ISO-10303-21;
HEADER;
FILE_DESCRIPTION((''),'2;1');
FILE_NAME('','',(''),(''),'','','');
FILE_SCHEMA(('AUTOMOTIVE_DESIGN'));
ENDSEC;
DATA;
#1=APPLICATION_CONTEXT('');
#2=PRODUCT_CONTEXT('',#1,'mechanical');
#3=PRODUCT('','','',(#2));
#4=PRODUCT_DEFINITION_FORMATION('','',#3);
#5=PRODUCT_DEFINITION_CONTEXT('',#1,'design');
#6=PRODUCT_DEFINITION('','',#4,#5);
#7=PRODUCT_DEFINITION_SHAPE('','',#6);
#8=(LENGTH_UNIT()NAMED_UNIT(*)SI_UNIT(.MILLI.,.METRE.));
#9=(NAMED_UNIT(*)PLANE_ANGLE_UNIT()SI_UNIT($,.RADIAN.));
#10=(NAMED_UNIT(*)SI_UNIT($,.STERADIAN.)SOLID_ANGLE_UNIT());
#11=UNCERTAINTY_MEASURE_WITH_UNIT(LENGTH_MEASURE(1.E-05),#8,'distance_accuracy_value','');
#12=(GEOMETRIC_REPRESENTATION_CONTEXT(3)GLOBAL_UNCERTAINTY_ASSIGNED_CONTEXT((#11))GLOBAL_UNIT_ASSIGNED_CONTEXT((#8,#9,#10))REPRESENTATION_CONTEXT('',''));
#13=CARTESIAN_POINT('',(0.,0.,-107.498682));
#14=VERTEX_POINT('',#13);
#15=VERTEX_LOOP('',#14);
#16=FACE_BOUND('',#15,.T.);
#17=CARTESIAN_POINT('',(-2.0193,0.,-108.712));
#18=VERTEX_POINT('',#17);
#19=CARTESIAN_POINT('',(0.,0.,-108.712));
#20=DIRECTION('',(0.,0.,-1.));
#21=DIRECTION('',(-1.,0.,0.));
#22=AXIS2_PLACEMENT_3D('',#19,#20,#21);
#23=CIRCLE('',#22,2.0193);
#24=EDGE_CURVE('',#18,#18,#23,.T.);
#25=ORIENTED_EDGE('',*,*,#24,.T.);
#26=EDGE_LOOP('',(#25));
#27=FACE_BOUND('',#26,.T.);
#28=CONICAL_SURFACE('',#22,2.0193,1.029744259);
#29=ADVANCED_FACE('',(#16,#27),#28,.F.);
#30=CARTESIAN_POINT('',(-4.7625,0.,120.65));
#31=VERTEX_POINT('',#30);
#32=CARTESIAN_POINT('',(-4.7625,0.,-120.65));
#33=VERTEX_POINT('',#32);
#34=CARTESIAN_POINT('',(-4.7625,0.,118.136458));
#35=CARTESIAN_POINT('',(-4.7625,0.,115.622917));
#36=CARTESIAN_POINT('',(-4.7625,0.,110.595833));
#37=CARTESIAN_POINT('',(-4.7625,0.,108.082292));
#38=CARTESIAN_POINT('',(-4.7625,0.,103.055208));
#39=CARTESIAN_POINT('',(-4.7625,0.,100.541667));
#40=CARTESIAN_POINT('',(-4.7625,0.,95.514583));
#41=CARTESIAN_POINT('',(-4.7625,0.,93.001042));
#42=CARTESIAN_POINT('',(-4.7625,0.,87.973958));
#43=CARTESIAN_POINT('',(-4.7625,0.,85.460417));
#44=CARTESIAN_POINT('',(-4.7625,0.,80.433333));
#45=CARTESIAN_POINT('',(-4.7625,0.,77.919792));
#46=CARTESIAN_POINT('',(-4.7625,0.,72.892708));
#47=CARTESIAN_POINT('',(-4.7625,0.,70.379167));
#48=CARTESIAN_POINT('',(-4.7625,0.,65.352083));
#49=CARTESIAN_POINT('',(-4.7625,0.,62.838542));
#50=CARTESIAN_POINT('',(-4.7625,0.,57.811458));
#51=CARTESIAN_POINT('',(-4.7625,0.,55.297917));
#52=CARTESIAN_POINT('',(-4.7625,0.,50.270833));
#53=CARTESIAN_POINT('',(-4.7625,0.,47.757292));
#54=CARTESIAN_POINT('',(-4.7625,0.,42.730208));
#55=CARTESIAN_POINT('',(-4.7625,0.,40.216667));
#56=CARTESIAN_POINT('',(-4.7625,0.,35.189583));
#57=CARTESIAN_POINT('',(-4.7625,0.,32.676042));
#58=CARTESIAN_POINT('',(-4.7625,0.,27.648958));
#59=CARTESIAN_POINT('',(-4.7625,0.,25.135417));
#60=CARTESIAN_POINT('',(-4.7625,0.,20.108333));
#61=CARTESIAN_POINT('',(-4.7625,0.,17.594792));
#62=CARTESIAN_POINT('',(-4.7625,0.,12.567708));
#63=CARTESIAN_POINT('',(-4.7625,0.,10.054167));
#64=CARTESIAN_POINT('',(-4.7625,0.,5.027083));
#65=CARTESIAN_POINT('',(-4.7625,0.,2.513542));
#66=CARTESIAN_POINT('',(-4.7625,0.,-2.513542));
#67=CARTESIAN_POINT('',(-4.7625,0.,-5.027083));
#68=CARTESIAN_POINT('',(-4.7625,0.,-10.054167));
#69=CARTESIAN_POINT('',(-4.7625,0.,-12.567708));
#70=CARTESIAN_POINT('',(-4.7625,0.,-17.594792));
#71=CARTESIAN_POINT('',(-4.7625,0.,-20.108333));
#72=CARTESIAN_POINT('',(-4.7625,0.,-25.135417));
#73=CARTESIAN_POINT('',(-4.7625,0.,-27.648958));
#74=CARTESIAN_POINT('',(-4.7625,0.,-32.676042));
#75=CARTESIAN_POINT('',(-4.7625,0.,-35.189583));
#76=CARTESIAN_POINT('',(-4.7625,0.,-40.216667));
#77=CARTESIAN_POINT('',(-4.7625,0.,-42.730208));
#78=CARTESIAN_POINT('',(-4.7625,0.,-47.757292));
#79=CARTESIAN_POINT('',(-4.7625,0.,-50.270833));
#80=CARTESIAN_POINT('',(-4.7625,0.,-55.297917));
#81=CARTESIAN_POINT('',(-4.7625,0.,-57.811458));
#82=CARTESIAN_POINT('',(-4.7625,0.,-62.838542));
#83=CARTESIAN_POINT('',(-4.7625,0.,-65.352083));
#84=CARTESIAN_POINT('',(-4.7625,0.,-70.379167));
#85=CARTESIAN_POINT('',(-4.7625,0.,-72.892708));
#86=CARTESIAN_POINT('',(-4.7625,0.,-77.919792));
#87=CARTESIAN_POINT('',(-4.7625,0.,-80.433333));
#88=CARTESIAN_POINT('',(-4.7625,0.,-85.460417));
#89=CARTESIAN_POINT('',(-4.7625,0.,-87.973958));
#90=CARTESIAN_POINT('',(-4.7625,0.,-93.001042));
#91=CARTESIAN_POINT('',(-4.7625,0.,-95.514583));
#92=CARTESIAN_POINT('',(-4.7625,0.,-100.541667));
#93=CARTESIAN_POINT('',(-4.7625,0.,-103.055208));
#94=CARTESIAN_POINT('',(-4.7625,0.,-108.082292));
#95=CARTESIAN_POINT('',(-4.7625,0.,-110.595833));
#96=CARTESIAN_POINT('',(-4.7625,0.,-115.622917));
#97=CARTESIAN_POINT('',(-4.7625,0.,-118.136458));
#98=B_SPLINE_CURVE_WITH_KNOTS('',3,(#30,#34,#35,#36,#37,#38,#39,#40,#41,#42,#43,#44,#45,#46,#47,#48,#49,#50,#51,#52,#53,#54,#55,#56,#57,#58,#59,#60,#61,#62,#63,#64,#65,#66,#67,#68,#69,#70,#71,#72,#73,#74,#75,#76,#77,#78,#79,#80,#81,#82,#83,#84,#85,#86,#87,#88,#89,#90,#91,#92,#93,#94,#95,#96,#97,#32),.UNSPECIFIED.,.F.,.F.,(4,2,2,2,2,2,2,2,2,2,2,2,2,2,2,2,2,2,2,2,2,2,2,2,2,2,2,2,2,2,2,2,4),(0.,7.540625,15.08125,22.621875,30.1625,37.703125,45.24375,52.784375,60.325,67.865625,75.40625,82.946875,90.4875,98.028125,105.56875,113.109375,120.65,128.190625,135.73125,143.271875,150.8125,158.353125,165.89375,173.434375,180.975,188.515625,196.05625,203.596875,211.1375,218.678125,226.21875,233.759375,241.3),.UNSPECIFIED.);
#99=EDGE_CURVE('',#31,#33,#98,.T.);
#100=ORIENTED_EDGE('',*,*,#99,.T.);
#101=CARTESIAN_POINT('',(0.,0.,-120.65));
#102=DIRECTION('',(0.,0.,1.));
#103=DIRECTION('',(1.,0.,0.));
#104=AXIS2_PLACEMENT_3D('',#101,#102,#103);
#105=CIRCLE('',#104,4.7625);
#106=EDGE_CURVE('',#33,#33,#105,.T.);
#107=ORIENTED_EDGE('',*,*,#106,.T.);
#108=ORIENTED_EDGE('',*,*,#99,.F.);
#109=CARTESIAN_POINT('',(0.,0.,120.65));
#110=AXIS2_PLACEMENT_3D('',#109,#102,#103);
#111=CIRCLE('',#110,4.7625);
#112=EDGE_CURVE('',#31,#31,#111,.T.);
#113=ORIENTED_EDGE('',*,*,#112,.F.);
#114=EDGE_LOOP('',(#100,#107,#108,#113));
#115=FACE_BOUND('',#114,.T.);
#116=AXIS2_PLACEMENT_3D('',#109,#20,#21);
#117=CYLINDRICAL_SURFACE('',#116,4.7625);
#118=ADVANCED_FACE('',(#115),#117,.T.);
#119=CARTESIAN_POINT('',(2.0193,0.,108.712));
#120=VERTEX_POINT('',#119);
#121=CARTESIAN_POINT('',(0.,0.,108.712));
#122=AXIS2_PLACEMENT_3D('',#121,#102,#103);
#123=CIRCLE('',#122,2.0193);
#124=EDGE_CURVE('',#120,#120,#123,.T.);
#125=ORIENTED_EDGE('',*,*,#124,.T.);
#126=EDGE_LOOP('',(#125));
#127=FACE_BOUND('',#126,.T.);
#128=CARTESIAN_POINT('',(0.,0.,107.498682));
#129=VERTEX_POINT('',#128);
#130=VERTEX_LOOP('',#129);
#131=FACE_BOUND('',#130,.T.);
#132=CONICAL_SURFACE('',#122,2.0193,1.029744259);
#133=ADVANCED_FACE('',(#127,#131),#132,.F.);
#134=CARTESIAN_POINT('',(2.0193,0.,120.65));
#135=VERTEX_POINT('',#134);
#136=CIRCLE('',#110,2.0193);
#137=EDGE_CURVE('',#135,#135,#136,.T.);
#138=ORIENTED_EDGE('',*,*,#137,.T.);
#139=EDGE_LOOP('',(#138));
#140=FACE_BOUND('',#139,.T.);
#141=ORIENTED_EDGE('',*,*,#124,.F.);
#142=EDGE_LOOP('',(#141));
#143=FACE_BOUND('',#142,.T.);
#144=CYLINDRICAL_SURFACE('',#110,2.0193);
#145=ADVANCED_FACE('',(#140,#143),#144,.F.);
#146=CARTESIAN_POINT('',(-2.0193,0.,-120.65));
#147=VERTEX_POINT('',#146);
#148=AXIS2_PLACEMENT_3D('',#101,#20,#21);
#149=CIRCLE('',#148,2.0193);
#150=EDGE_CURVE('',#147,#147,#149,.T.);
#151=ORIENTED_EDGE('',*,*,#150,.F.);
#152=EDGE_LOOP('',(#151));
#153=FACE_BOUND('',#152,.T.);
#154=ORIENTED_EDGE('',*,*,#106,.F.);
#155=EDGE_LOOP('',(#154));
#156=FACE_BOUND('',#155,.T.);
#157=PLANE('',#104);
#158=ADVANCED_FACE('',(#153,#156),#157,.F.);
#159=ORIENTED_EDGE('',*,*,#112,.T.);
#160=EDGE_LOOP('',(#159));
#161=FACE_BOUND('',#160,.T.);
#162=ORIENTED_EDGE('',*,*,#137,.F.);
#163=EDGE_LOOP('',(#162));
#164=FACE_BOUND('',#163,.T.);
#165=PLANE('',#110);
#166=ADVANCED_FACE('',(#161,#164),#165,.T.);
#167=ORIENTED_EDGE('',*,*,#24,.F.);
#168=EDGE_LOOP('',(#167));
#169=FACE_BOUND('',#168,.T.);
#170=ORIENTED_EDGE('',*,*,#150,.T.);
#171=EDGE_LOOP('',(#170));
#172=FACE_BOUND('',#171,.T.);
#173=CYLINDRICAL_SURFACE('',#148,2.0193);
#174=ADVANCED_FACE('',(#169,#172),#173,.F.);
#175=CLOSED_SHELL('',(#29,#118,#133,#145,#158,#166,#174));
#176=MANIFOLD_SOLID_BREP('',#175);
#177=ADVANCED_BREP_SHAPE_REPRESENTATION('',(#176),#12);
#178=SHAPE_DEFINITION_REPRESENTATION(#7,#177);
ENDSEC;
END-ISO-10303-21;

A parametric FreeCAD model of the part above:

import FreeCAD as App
import Part
import Sketcher
from FreeCAD import Vector
Q = App.Units.Quantity

doc = App.newDocument("Part")
body = doc.addObject("PartDesign::Body", "Body")

sketch1 = body.newObject("Sketcher::SketchObject", "Sketch")
sketch1.AttachmentSupport = (doc.getObject("XY_Plane"), [""])
sketch1.MapMode = "FlatFace"
sketch1.addGeometry(Part.Circle(Vector(0, 0, 0), Vector(0, 0, 1), 4.8), False)
sketch1.addConstraint(Sketcher.Constraint("Coincident", 0, 3, -1, 1))
sketch1.addConstraint(Sketcher.Constraint("Diameter", 0, Q("0.375 in")))
pad1 = body.newObject("PartDesign::Pad", "Pad")
pad1.Profile = sketch1
pad1.Length = Q("9.5 in")
pad1.Midplane = True

sketch2 = body.newObject("Sketcher::SketchObject", "Sketch001")
sketch2.AttachmentSupport = (doc.getObject("XY_Plane"), [""])
sketch2.MapMode = "FlatFace"
sketch2.AttachmentOffset = App.Placement(Vector(0, 0, 4.75 * 25.4), App.Rotation())
sketch2.addGeometry(Part.Circle(Vector(0, 0, 0), Vector(0, 0, 1), 2), False)
sketch2.addConstraint(Sketcher.Constraint("Coincident", 0, 3, -1, 1))
sketch2.addConstraint(Sketcher.Constraint("Diameter", 0, Q("0.159 in")))
doc.recompute()
hole = body.newObject("PartDesign::Hole", "Hole")
hole.Profile = sketch2
hole.ThreadType = "None"
hole.Diameter = Q("0.159 in")
hole.DepthType = "Dimension"
hole.Depth = Q("0.47 in")
hole.DrillPoint = "Angled"
hole.DrillPointAngle = 118

sketch3 = body.newObject("Sketcher::SketchObject", "Sketch002")
sketch3.AttachmentSupport = (doc.getObject("XY_Plane"), [""])
sketch3.MapMode = "FlatFace"
sketch3.AttachmentOffset = App.Placement(Vector(0, 0, -4.75 * 25.4), App.Rotation())
sketch3.addGeometry(Part.Circle(Vector(0, 0, 0), Vector(0, 0, 1), 2), False)
sketch3.addConstraint(Sketcher.Constraint("Coincident", 0, 3, -1, 1))
sketch3.addConstraint(Sketcher.Constraint("Diameter", 0, Q("0.159 in")))
doc.recompute()
hole2 = body.newObject("PartDesign::Hole", "Hole001")
hole2.Profile = sketch3
hole2.ThreadType = "None"
hole2.Diameter = Q("0.159 in")
hole2.DepthType = "Dimension"
hole2.Depth = Q("0.47 in")
hole2.DrillPoint = "Angled"
hole2.DrillPointAngle = 118
hole2.Reversed = True

doc.recompute()
